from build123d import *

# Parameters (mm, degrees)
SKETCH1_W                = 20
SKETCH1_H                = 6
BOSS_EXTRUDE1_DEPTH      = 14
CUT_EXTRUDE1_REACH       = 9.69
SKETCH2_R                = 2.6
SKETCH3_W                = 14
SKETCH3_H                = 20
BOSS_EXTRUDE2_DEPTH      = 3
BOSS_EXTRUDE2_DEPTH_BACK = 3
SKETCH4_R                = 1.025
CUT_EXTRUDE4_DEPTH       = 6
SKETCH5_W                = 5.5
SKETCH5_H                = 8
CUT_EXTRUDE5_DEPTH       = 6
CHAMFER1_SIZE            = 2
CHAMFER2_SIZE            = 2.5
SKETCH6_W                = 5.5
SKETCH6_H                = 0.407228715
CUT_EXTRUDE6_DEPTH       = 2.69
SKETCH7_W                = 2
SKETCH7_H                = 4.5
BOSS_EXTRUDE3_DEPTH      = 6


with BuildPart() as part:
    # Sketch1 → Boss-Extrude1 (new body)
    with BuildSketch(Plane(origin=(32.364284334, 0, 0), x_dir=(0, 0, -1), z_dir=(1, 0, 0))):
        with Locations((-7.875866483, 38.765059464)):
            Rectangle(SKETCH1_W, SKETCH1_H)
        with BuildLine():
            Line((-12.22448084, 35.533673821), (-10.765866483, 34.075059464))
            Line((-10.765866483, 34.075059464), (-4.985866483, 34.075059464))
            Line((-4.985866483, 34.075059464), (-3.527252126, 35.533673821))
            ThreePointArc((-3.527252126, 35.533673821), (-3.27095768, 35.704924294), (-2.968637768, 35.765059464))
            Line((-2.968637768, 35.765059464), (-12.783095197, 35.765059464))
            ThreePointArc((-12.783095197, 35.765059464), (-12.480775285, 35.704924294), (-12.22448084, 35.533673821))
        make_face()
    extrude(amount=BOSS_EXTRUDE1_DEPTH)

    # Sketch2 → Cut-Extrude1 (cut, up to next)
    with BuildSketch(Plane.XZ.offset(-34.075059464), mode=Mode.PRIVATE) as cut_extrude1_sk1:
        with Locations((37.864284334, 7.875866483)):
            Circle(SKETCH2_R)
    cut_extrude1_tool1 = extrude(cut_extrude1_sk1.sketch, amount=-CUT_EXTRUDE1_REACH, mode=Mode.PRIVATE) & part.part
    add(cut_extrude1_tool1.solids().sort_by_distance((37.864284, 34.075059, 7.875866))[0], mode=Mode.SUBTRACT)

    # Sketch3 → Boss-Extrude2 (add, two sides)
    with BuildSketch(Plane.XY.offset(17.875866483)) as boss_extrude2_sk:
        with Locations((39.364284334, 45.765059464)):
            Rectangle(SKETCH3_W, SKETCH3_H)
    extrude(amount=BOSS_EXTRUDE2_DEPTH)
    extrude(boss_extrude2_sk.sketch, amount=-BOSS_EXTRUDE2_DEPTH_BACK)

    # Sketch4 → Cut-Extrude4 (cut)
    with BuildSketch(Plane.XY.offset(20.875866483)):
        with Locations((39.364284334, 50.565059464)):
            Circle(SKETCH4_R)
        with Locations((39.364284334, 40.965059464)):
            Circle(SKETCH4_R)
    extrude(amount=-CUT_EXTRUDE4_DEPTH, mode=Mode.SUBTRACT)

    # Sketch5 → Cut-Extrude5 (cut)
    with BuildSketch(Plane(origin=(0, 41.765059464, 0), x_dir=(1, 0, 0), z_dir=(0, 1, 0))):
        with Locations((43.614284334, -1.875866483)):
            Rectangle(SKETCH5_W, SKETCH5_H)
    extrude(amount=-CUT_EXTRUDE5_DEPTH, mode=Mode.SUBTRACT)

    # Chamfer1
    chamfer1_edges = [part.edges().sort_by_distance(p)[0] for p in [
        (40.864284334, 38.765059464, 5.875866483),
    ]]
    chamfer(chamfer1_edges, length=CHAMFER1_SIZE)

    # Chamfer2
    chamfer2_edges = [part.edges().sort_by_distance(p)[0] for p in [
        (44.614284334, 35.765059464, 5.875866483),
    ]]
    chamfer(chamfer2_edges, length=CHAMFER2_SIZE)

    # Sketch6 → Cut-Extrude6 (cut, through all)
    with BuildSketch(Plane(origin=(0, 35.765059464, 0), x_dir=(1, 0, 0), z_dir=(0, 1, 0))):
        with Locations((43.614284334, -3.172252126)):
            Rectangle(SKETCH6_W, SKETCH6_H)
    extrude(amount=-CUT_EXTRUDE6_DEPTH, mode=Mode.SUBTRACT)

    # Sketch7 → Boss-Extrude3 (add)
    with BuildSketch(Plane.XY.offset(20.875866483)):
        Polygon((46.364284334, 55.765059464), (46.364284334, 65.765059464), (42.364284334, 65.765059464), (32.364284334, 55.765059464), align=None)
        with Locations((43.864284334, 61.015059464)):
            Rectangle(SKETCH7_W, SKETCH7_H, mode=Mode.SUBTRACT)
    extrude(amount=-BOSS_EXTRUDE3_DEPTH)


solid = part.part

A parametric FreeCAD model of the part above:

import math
import FreeCAD as App
import Part
import Sketcher

V = App.Vector
Q = App.Units.Quantity


def edges_at(feature, points):
    """Names of the edges that pass closest to the given points."""
    edges = feature.Shape.Edges
    near = lambda p: min(range(len(edges)), key=lambda i: edges[i].distToShape(Part.Vertex(*p))[0])
    return sorted({f"Edge{near(p) + 1}" for p in points})

doc = App.newDocument("Part")
body = doc.addObject("PartDesign::Body", "Body")

sketch1 = doc.addObject("Sketcher::SketchObject", "Sketch")
body.addObject(sketch1)
sketch1.AttachmentSupport = (doc.YZ_Plane, [""])
sketch1.MapMode = "FlatFace"
sketch1.AttachmentOffset = App.Placement(V(0, 0, 32.364284), App.Rotation())
sketch1.addGeometry(Part.LineSegment(V(41.8, 17.9, 0), V(35.8, 17.9, 0)), False)
sketch1.addGeometry(Part.LineSegment(V(35.8, 17.9, 0), V(35.8, 12.8, 0)), False)
sketch1.addGeometry(Part.ArcOfCircle(Part.Circle(V(35, 12.8, 0), V(0, 0, 1), 0.8), math.radians(-45), math.radians(0)), False)
sketch1.addGeometry(Part.LineSegment(V(35.5, 12.2, 0), V(34.1, 10.8, 0)), False)
sketch1.addGeometry(Part.LineSegment(V(34.1, 10.8, 0), V(34.1, 5, 0)), False)
sketch1.addGeometry(Part.LineSegment(V(34.1, 5, 0), V(35.5, 3.5, 0)), False)
sketch1.addGeometry(Part.ArcOfCircle(Part.Circle(V(35, 3, 0), V(0, 0, 1), 0.8), math.radians(0), math.radians(45)), False)
sketch1.addGeometry(Part.LineSegment(V(35.8, 3, 0), V(35.8, -2.1, 0)), False)
sketch1.addGeometry(Part.LineSegment(V(35.8, -2.1, 0), V(41.8, -2.1, 0)), False)
sketch1.addGeometry(Part.LineSegment(V(41.8, -2.1, 0), V(41.8, 17.9, 0)), False)
sketch1.addConstraint(Sketcher.Constraint("Coincident", 0, 2, 1, 1))
sketch1.addConstraint(Sketcher.Constraint("Tangent", 1, 2, 2, 2))
sketch1.addConstraint(Sketcher.Constraint("Tangent", 2, 1, 3, 1))
sketch1.addConstraint(Sketcher.Constraint("Coincident", 3, 2, 4, 1))
sketch1.addConstraint(Sketcher.Constraint("Coincident", 4, 2, 5, 1))
sketch1.addConstraint(Sketcher.Constraint("Tangent", 5, 2, 6, 2))
sketch1.addConstraint(Sketcher.Constraint("Tangent", 6, 1, 7, 1))
sketch1.addConstraint(Sketcher.Constraint("Coincident", 7, 2, 8, 1))
sketch1.addConstraint(Sketcher.Constraint("Coincident", 8, 2, 9, 1))
sketch1.addConstraint(Sketcher.Constraint("Coincident", 9, 2, 0, 1))
sketch1.addConstraint(Sketcher.Constraint("Horizontal", 0))
sketch1.addConstraint(Sketcher.Constraint("Vertical", 1))
sketch1.addConstraint(Sketcher.Constraint("Vertical", 4))
sketch1.addConstraint(Sketcher.Constraint("Vertical", 7))
sketch1.addConstraint(Sketcher.Constraint("Horizontal", 8))
sketch1.addConstraint(Sketcher.Constraint("Vertical", 9))
sketch1.addConstraint(Sketcher.Constraint("Equal", 2, 6))
sketch1.addConstraint(Sketcher.Constraint("Perpendicular", 3, 5))
sketch1.addConstraint(Sketcher.Constraint("Vertical", 2, 3, 6, 3))
sketch1.addConstraint(Sketcher.Constraint("Vertical", 2, 1, 5, 2))
sketch1.addConstraint(Sketcher.Constraint("Equal", 1, 7))
sketch1.addConstraint(Sketcher.Constraint("DistanceX", 0, 2, 0, 1, Q("6 mm")))
sketch1.addConstraint(Sketcher.Constraint("DistanceY", 9, 1, 9, 2, Q("20 mm")))
sketch1.addConstraint(Sketcher.Constraint("Radius", 2, Q("0.79 mm")))
sketch1.addConstraint(Sketcher.Constraint("DistanceY", 4, 2, 4, 1, Q("5.78 mm")))
sketch1.addConstraint(Sketcher.Constraint("DistanceX", 3, 2, 2, 3, Q("0.9 mm")))
sketch1.addConstraint(Sketcher.Constraint("DistanceX", -1, 1, 2, 3, Q("34.975059 mm")))
sketch1.addConstraint(Sketcher.Constraint("DistanceY", -1, 1, 2, 1, Q("12.224481 mm")))
pad1 = doc.addObject("PartDesign::Pad", "Pad")
body.addObject(pad1)
pad1.Profile = sketch1
pad1.Length = 14

sketch2 = doc.addObject("Sketcher::SketchObject", "Sketch001")
body.addObject(sketch2)
sketch2.AttachmentSupport = (doc.XZ_Plane, [""])
sketch2.MapMode = "FlatFace"
sketch2.AttachmentOffset = App.Placement(V(0, 0, -34.075059), App.Rotation())
sketch2.addGeometry(Part.Circle(V(37.9, 7.9, 0), V(0, 0, 1), 2.6), False)
sketch2.addConstraint(Sketcher.Constraint("Diameter", 0, Q("5.2 mm")))
sketch2.addConstraint(Sketcher.Constraint("DistanceX", -1, 1, 0, 3, Q("37.864284 mm")))
sketch2.addConstraint(Sketcher.Constraint("DistanceY", -1, 1, 0, 3, Q("7.875866 mm")))
pocket1 = doc.addObject("PartDesign::Pocket", "Pocket")
body.addObject(pocket1)
pocket1.Profile = sketch2
pocket1.Type = "UpToFirst"

sketch3 = doc.addObject("Sketcher::SketchObject", "Sketch002")
body.addObject(sketch3)
sketch3.AttachmentSupport = (doc.XY_Plane, [""])
sketch3.MapMode = "FlatFace"
sketch3.AttachmentOffset = App.Placement(V(0, 0, 17.875866), App.Rotation())
sketch3.addGeometry(Part.LineSegment(V(32, 56, 0), V(32, 36, 0)), False)
sketch3.addGeometry(Part.LineSegment(V(32, 36, 0), V(46, 36, 0)), False)
sketch3.addGeometry(Part.LineSegment(V(46, 36, 0), V(46, 56, 0)), False)
sketch3.addGeometry(Part.LineSegment(V(46, 56, 0), V(32, 56, 0)), False)
sketch3.addConstraint(Sketcher.Constraint("Coincident", 0, 2, 1, 1))
sketch3.addConstraint(Sketcher.Constraint("Coincident", 1, 2, 2, 1))
sketch3.addConstraint(Sketcher.Constraint("Coincident", 2, 2, 3, 1))
sketch3.addConstraint(Sketcher.Constraint("Coincident", 3, 2, 0, 1))
sketch3.addConstraint(Sketcher.Constraint("Vertical", 0))
sketch3.addConstraint(Sketcher.Constraint("Horizontal", 1))
sketch3.addConstraint(Sketcher.Constraint("Vertical", 2))
sketch3.addConstraint(Sketcher.Constraint("Horizontal", 3))
sketch3.addConstraint(Sketcher.Constraint("DistanceX", 1, 1, 1, 2, Q("14 mm")))
sketch3.addConstraint(Sketcher.Constraint("DistanceY", 0, 2, 0, 1, Q("20 mm")))
sketch3.addConstraint(Sketcher.Constraint("DistanceY", -1, 1, 0, 2, Q("35.765059 mm")))
sketch3.addConstraint(Sketcher.Constraint("DistanceX", -1, 1, 0, 2, Q("32.364284 mm")))
pad2 = doc.addObject("PartDesign::Pad", "Pad001")
body.addObject(pad2)
pad2.Profile = sketch3
pad2.Type = "TwoLengths"
pad2.Length = 3
pad2.Length2 = 3

sketch4 = doc.addObject("Sketcher::SketchObject", "Sketch003")
body.addObject(sketch4)
sketch4.AttachmentSupport = (doc.XY_Plane, [""])
sketch4.MapMode = "FlatFace"
sketch4.AttachmentOffset = App.Placement(V(0, 0, 20.875866), App.Rotation())
sketch4.addGeometry(Part.Circle(V(39.4, 50.6, 0), V(0, 0, 1), 1), False)
sketch4.addGeometry(Part.Circle(V(39.4, 41, 0), V(0, 0, 1), 1), False)
sketch4.addConstraint(Sketcher.Constraint("Equal", 0, 1))
sketch4.addConstraint(Sketcher.Constraint("Vertical", 0, 3, 1, 3))
sketch4.addConstraint(Sketcher.Constraint("Diameter", 0, Q("2.05 mm")))
sketch4.addConstraint(Sketcher.Constraint("DistanceY", 1, 3, 0, 3, Q("9.6 mm")))
sketch4.addConstraint(Sketcher.Constraint("DistanceY", -1, 1, 0, 3, Q("50.565059 mm")))
sketch4.addConstraint(Sketcher.Constraint("DistanceX", -1, 1, 0, 3, Q("39.364284 mm")))
pocket2 = doc.addObject("PartDesign::Pocket", "Pocket001")
body.addObject(pocket2)
pocket2.Profile = sketch4
pocket2.Length = 6

sketch5 = doc.addObject("Sketcher::SketchObject", "Sketch004")
body.addObject(sketch5)
sketch5.AttachmentSupport = (doc.XZ_Plane, [""])
sketch5.MapMode = "FlatFace"
sketch5.AttachmentOffset = App.Placement(V(0, 0, -41.765059), App.Rotation())
sketch5.addGeometry(Part.LineSegment(V(41, -2, 0), V(41, 6, 0)), False)
sketch5.addGeometry(Part.LineSegment(V(41, 6, 0), V(46, 6, 0)), False)
sketch5.addGeometry(Part.LineSegment(V(46, 6, 0), V(46, -2, 0)), False)
sketch5.addGeometry(Part.LineSegment(V(46, -2, 0), V(41, -2, 0)), False)
sketch5.addConstraint(Sketcher.Constraint("Coincident", 0, 2, 1, 1))
sketch5.addConstraint(Sketcher.Constraint("Coincident", 1, 2, 2, 1))
sketch5.addConstraint(Sketcher.Constraint("Coincident", 2, 2, 3, 1))
sketch5.addConstraint(Sketcher.Constraint("Coincident", 3, 2, 0, 1))
sketch5.addConstraint(Sketcher.Constraint("Vertical", 0))
sketch5.addConstraint(Sketcher.Constraint("Horizontal", 1))
sketch5.addConstraint(Sketcher.Constraint("Vertical", 2))
sketch5.addConstraint(Sketcher.Constraint("Horizontal", 3))
sketch5.addConstraint(Sketcher.Constraint("DistanceY", 0, 1, 0, 2, Q("8 mm")))
sketch5.addConstraint(Sketcher.Constraint("DistanceX", 1, 1, 1, 2, Q("5.5 mm")))
sketch5.addConstraint(Sketcher.Constraint("DistanceX", -1, 1, 0, 2, Q("40.864284 mm")))
sketch5.addConstraint(Sketcher.Constraint("DistanceY", -1, 1, 0, 2, Q("5.875866 mm")))
pocket3 = doc.addObject("PartDesign::Pocket", "Pocket002")
body.addObject(pocket3)
pocket3.Profile = sketch5
pocket3.Length = 6
pocket3.Reversed = True
doc.recompute()

chamfer = doc.addObject("PartDesign::Chamfer", "Chamfer")
body.addObject(chamfer)
chamfer.Base = (pocket3, edges_at(pocket3, [(40.864, 38.765, 5.876)]))
chamfer.Size = 2
doc.recompute()

chamfer2 = doc.addObject("PartDesign::Chamfer", "Chamfer001")
body.addObject(chamfer2)
chamfer2.Base = (chamfer, edges_at(chamfer, [(44.614, 35.765, 5.876)]))
chamfer2.Size = 2.5

sketch6 = doc.addObject("Sketcher::SketchObject", "Sketch005")
body.addObject(sketch6)
sketch6.AttachmentSupport = (doc.XZ_Plane, [""])
sketch6.MapMode = "FlatFace"
sketch6.AttachmentOffset = App.Placement(V(0, 0, -35.765059), App.Rotation())
sketch6.addGeometry(Part.LineSegment(V(40.86, 2.97, 0), V(40.86, 3.38, 0)), False)
sketch6.addGeometry(Part.LineSegment(V(40.86, 3.38, 0), V(46.36, 3.38, 0)), False)
sketch6.addGeometry(Part.LineSegment(V(46.36, 3.38, 0), V(46.36, 2.97, 0)), False)
sketch6.addGeometry(Part.LineSegment(V(46.36, 2.97, 0), V(40.86, 2.97, 0)), False)
sketch6.addConstraint(Sketcher.Constraint("Coincident", 0, 2, 1, 1))
sketch6.addConstraint(Sketcher.Constraint("Coincident", 1, 2, 2, 1))
sketch6.addConstraint(Sketcher.Constraint("Coincident", 2, 2, 3, 1))
sketch6.addConstraint(Sketcher.Constraint("Coincident", 3, 2, 0, 1))
sketch6.addConstraint(Sketcher.Constraint("Vertical", 0))
sketch6.addConstraint(Sketcher.Constraint("Horizontal", 1))
sketch6.addConstraint(Sketcher.Constraint("Vertical", 2))
sketch6.addConstraint(Sketcher.Constraint("Horizontal", 3))
sketch6.addConstraint(Sketcher.Constraint("DistanceX", 1, 1, 1, 2, Q("5.5 mm")))
sketch6.addConstraint(Sketcher.Constraint("DistanceY", 0, 1, 0, 2, Q("0.407229 mm")))
sketch6.addConstraint(Sketcher.Constraint("DistanceX", -1, 1, 0, 2, Q("40.864284 mm")))
sketch6.addConstraint(Sketcher.Constraint("DistanceY", -1, 1, 0, 2, Q("3.375866 mm")))
pocket4 = doc.addObject("PartDesign::Pocket", "Pocket003")
body.addObject(pocket4)
pocket4.Profile = sketch6
pocket4.Type = "ThroughAll"
pocket4.Reversed = True

sketch7 = doc.addObject("Sketcher::SketchObject", "Sketch006")
body.addObject(sketch7)
sketch7.AttachmentSupport = (doc.XY_Plane, [""])
sketch7.MapMode = "FlatFace"
sketch7.AttachmentOffset = App.Placement(V(0, 0, 20.875866), App.Rotation())
sketch7.addGeometry(Part.LineSegment(V(46.4, 55.8, 0), V(46.4, 65.8, 0)), False)
sketch7.addGeometry(Part.LineSegment(V(46.4, 65.8, 0), V(42.4, 65.8, 0)), False)
sketch7.addGeometry(Part.LineSegment(V(42.4, 65.8, 0), V(32.4, 55.8, 0)), False)
sketch7.addGeometry(Part.LineSegment(V(32.4, 55.8, 0), V(46.4, 55.8, 0)), False)
sketch7.addGeometry(Part.LineSegment(V(44.9, 58.8, 0), V(42.9, 58.8, 0)), False)
sketch7.addGeometry(Part.LineSegment(V(42.9, 58.8, 0), V(42.9, 63.3, 0)), False)
sketch7.addGeometry(Part.LineSegment(V(42.9, 63.3, 0), V(44.9, 63.3, 0)), False)
sketch7.addGeometry(Part.LineSegment(V(44.9, 63.3, 0), V(44.9, 58.8, 0)), False)
sketch7.addConstraint(Sketcher.Constraint("Coincident", 0, 2, 1, 1))
sketch7.addConstraint(Sketcher.Constraint("Coincident", 1, 2, 2, 1))
sketch7.addConstraint(Sketcher.Constraint("Coincident", 2, 2, 3, 1))
sketch7.addConstraint(Sketcher.Constraint("Coincident", 3, 2, 0, 1))
sketch7.addConstraint(Sketcher.Constraint("Coincident", 4, 2, 5, 1))
sketch7.addConstraint(Sketcher.Constraint("Coincident", 5, 2, 6, 1))
sketch7.addConstraint(Sketcher.Constraint("Coincident", 6, 2, 7, 1))
sketch7.addConstraint(Sketcher.Constraint("Coincident", 7, 2, 4, 1))
sketch7.addConstraint(Sketcher.Constraint("Vertical", 0))
sketch7.addConstraint(Sketcher.Constraint("Horizontal", 1))
sketch7.addConstraint(Sketcher.Constraint("Horizontal", 3))
sketch7.addConstraint(Sketcher.Constraint("Horizontal", 4))
sketch7.addConstraint(Sketcher.Constraint("Vertical", 5))
sketch7.addConstraint(Sketcher.Constraint("Horizontal", 6))
sketch7.addConstraint(Sketcher.Constraint("Vertical", 7))
sketch7.addConstraint(Sketcher.Constraint("DistanceX", 1, 2, 1, 1, Q("4 mm")))
sketch7.addConstraint(Sketcher.Constraint("DistanceX", 3, 1, 3, 2, Q("14 mm")))
sketch7.addConstraint(Sketcher.Constraint("DistanceX", 4, 2, 4, 1, Q("2 mm")))
sketch7.addConstraint(Sketcher.Constraint("DistanceY", 0, 1, 0, 2, Q("10 mm")))
sketch7.addConstraint(Sketcher.Constraint("DistanceY", 5, 1, 5, 2, Q("4.5 mm")))
sketch7.addConstraint(Sketcher.Constraint("DistanceY", 3, 2, 4, 2, Q("3 mm")))
sketch7.addConstraint(Sketcher.Constraint("DistanceX", 4, 2, 3, 2, Q("3.5 mm")))
sketch7.addConstraint(Sketcher.Constraint("DistanceY", -1, 1, 0, 2, Q("65.765059 mm")))
sketch7.addConstraint(Sketcher.Constraint("DistanceX", -1, 1, 0, 2, Q("46.364284 mm")))
pad3 = doc.addObject("PartDesign::Pad", "Pad002")
body.addObject(pad3)
pad3.Profile = sketch7
pad3.Length = 6
pad3.Reversed = True

doc.recompute()
